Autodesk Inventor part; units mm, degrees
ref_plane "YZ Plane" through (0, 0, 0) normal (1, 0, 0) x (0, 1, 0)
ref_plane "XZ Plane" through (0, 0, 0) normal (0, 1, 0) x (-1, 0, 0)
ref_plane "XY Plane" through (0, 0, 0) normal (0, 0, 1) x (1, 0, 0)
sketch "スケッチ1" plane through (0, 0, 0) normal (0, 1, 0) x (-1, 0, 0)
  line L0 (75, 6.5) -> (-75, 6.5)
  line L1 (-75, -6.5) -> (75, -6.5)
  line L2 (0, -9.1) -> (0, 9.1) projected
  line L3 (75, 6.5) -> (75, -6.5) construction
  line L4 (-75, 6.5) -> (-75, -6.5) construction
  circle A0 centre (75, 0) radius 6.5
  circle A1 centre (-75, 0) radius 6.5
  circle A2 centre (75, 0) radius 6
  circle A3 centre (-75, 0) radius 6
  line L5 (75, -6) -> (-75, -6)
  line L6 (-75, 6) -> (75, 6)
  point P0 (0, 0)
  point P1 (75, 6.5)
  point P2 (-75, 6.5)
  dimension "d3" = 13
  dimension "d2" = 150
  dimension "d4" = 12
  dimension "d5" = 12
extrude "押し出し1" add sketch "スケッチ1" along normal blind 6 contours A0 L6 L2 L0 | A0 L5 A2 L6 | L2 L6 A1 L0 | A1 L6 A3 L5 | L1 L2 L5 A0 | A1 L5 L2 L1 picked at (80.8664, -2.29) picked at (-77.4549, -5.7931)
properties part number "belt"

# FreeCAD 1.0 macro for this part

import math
import FreeCAD as App
import Part
import Sketcher

doc = App.newDocument("Part")
body = doc.addObject("PartDesign::Body", "Body")

# Sketch on XZ plane
sketch1 = body.newObject("Sketcher::SketchObject", "Sketch")
sketch1.AttachmentSupport = (doc.getObject("XZ_Plane"), [""])
sketch1.MapMode = "FlatFace"
sketch1.addGeometry([
    Part.LineSegment(App.Vector(-75, 6, 0), App.Vector(75, 6, 0)),  # 0
    Part.ArcOfCircle(Part.Circle(App.Vector(75, 0, 0), App.Vector(0, 0, 1), 6), math.radians(-90), math.radians(90)),  # 1
    Part.LineSegment(App.Vector(75, -6, 0), App.Vector(-75, -6, 0)),  # 2
    Part.ArcOfCircle(Part.Circle(App.Vector(-75, 0, 0), App.Vector(0, 0, 1), 6), math.radians(90), math.radians(270)),  # 3
    Part.ArcOfCircle(Part.Circle(App.Vector(-75, 0, 0), App.Vector(0, 0, 1), 6), math.radians(90), math.radians(270)),  # 4
    Part.LineSegment(App.Vector(-75, -6, 0), App.Vector(75, -6, 0)),  # 5
    Part.ArcOfCircle(Part.Circle(App.Vector(75, 0, 0), App.Vector(0, 0, 1), 6), math.radians(-90), math.radians(90)),  # 6
    Part.LineSegment(App.Vector(75, 6, 0), App.Vector(-75, 6, 0)),  # 7
], False)
sketch1.addConstraint([
    Sketcher.Constraint("Tangent", 0, 2, 1, 2),
    Sketcher.Constraint("Tangent", 1, 1, 2, 1),
    Sketcher.Constraint("Tangent", 2, 2, 3, 2),
    Sketcher.Constraint("Tangent", 3, 1, 0, 1),
    Sketcher.Constraint("Tangent", 4, 2, 5, 1),
    Sketcher.Constraint("Tangent", 5, 2, 6, 1),
    Sketcher.Constraint("Tangent", 6, 2, 7, 1),
    Sketcher.Constraint("Tangent", 7, 2, 4, 1),
    Sketcher.Constraint("Horizontal", 0),
    Sketcher.Constraint("Horizontal", 2),
    Sketcher.Constraint("Horizontal", 5),
    Sketcher.Constraint("Horizontal", 7),
    Sketcher.Constraint("Coincident", 4, 3, 3, 3),
    Sketcher.Constraint("Symmetric", 1, 3, 3, 3, -1, 1),
    Sketcher.Constraint("Vertical", 6, 3, 0, 2),
    Sketcher.Constraint("Radius", 4, 6.0),
    Sketcher.Constraint("Radius", 1, 6.5),
    Sketcher.Constraint("DistanceX", 0, 1, 0, 2, 150.0),
])
pad1 = body.newObject("PartDesign::Pad", "Pad")
pad1.Profile = sketch1
pad1.Length = 6
pad1.Reversed = True

doc.recompute()
